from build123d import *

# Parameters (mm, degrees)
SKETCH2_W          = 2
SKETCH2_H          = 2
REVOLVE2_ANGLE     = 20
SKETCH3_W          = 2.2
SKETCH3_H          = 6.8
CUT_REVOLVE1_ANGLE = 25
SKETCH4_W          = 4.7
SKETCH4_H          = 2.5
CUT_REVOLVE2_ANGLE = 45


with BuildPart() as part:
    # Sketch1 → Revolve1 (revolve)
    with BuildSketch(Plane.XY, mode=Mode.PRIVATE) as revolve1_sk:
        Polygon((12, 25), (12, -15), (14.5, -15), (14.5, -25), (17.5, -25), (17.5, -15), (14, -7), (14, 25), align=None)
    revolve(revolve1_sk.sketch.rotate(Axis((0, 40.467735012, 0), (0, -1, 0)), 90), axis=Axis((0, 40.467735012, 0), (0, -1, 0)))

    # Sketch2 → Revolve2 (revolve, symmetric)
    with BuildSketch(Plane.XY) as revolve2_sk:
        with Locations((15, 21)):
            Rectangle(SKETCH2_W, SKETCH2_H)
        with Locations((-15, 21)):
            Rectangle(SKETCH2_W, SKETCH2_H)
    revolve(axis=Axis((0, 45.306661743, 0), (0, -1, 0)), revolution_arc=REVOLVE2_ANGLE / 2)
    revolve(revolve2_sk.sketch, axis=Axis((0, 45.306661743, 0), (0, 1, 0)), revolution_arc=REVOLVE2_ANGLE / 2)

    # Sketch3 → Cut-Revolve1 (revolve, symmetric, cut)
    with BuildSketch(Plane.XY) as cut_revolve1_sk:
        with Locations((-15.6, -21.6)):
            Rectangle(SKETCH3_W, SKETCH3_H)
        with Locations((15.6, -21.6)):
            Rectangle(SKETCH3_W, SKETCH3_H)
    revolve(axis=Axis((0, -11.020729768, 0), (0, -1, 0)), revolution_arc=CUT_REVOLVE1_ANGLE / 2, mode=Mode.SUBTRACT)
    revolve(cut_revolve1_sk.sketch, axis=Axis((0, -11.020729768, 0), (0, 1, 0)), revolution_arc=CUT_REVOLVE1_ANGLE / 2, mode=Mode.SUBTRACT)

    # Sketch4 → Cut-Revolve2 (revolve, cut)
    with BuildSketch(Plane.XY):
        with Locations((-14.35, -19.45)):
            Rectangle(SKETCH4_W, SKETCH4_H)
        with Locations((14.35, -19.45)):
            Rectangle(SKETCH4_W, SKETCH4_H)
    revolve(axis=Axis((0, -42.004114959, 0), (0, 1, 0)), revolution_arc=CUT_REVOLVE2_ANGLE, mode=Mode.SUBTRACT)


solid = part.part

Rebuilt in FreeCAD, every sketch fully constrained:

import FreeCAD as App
import Part
import Sketcher
from FreeCAD import Vector

doc = App.newDocument("Part")
body = doc.addObject("PartDesign::Body", "Body")

# Sketch on XY plane
sketch1 = doc.addObject("Sketcher::SketchObject", "Sketch")
body.addObject(sketch1)
sketch1.AttachmentSupport = (doc.XY_Plane, [""])
sketch1.MapMode = "FlatFace"
sketch1.addGeometry([
    Part.LineSegment(Vector(12, 25, 0), Vector(12, -15, 0)),  # 0
    Part.LineSegment(Vector(12, -15, 0), Vector(14.5, -15, 0)),  # 1
    Part.LineSegment(Vector(14.5, -15, 0), Vector(14.5, -25, 0)),  # 2
    Part.LineSegment(Vector(14.5, -25, 0), Vector(17.5, -25, 0)),  # 3
    Part.LineSegment(Vector(17.5, -25, 0), Vector(17.5, -15, 0)),  # 4
    Part.LineSegment(Vector(17.5, -15, 0), Vector(14, -7, 0)),  # 5
    Part.LineSegment(Vector(14, -7, 0), Vector(14, 25, 0)),  # 6
    Part.LineSegment(Vector(14, 25, 0), Vector(12, 25, 0)),  # 7
], False)
sketch1.addConstraint([
    Sketcher.Constraint("Coincident", 0, 2, 1, 1),
    Sketcher.Constraint("Coincident", 1, 2, 2, 1),
    Sketcher.Constraint("Coincident", 2, 2, 3, 1),
    Sketcher.Constraint("Coincident", 3, 2, 4, 1),
    Sketcher.Constraint("Coincident", 4, 2, 5, 1),
    Sketcher.Constraint("Coincident", 5, 2, 6, 1),
    Sketcher.Constraint("Coincident", 6, 2, 7, 1),
    Sketcher.Constraint("Coincident", 7, 2, 0, 1),
    Sketcher.Constraint("Vertical", 0),
    Sketcher.Constraint("Horizontal", 1),
    Sketcher.Constraint("Vertical", 2),
    Sketcher.Constraint("Horizontal", 3),
    Sketcher.Constraint("Vertical", 4),
    Sketcher.Constraint("Vertical", 6),
    Sketcher.Constraint("Horizontal", 7),
    Sketcher.Constraint("Horizontal", 1, 2, 4, 2),
    Sketcher.Constraint("DistanceX", 3, 1, 3, 2, 3.0),
    Sketcher.Constraint("DistanceX", 7, 2, 7, 1, 2.0),
    Sketcher.Constraint("DistanceY", 0, 2, 0, 1, 40.0),
    Sketcher.Constraint("DistanceY", 2, 2, 2, 1, 10.0),
    Sketcher.Constraint("DistanceY", 6, 1, 6, 2, 32.0),
    Sketcher.Constraint("DistanceX", 1, 1, 1, 2, 2.5),
    Sketcher.Constraint("DistanceX", -1, 1, 0, 2, 12.0),
    Sketcher.Constraint("DistanceY", 0, 2, -1, 1, 15.0),
])
revolution = doc.addObject("PartDesign::Revolution", "Revolution")
body.addObject(revolution)
revolution.Profile = sketch1
revolution.ReferenceAxis = (sketch1, ["V_Axis"])
revolution.Angle = 360

# Sketch on XY plane
sketch2 = doc.addObject("Sketcher::SketchObject", "Sketch001")
body.addObject(sketch2)
sketch2.AttachmentSupport = (doc.XY_Plane, [""])
sketch2.MapMode = "FlatFace"
sketch2.addGeometry([
    Part.LineSegment(Vector(14, 22, 0), Vector(14, 20, 0)),  # 0
    Part.LineSegment(Vector(14, 20, 0), Vector(16, 20, 0)),  # 1
    Part.LineSegment(Vector(16, 20, 0), Vector(16, 22, 0)),  # 2
    Part.LineSegment(Vector(16, 22, 0), Vector(14, 22, 0)),  # 3
    Part.LineSegment(Vector(-16, 22, 0), Vector(-16, 20, 0)),  # 4
    Part.LineSegment(Vector(-16, 20, 0), Vector(-14, 20, 0)),  # 5
    Part.LineSegment(Vector(-14, 20, 0), Vector(-14, 22, 0)),  # 6
    Part.LineSegment(Vector(-14, 22, 0), Vector(-16, 22, 0)),  # 7
], False)
sketch2.addConstraint([
    Sketcher.Constraint("Coincident", 0, 2, 1, 1),
    Sketcher.Constraint("Coincident", 1, 2, 2, 1),
    Sketcher.Constraint("Coincident", 2, 2, 3, 1),
    Sketcher.Constraint("Coincident", 3, 2, 0, 1),
    Sketcher.Constraint("Coincident", 4, 2, 5, 1),
    Sketcher.Constraint("Coincident", 5, 2, 6, 1),
    Sketcher.Constraint("Coincident", 6, 2, 7, 1),
    Sketcher.Constraint("Coincident", 7, 2, 4, 1),
    Sketcher.Constraint("Vertical", 0),
    Sketcher.Constraint("Horizontal", 1),
    Sketcher.Constraint("Vertical", 2),
    Sketcher.Constraint("Horizontal", 3),
    Sketcher.Constraint("Vertical", 4),
    Sketcher.Constraint("Horizontal", 5),
    Sketcher.Constraint("Vertical", 6),
    Sketcher.Constraint("Horizontal", 7),
    Sketcher.Constraint("Symmetric", 1, 2, 4, 2, -2),
    Sketcher.Constraint("Symmetric", 3, 2, 6, 2, -2),
    Sketcher.Constraint("Equal", 7, 0),
    Sketcher.Constraint("DistanceX", 1, 1, 1, 2, 2.0),
    Sketcher.Constraint("DistanceX", -1, 1, 0, 2, 14.0),
    Sketcher.Constraint("DistanceY", -1, 1, 0, 2, 20.0),
])
revolution2 = doc.addObject("PartDesign::Revolution", "Revolution001")
body.addObject(revolution2)
revolution2.Profile = sketch2
revolution2.ReferenceAxis = (sketch2, ["V_Axis"])
revolution2.Angle = 10
revolution2.Reversed = True

# Sketch on XY plane
sketch3 = doc.addObject("Sketcher::SketchObject", "Sketch002")
body.addObject(sketch3)
sketch3.AttachmentSupport = (doc.XY_Plane, [""])
sketch3.MapMode = "FlatFace"
sketch3.addGeometry([
    Part.LineSegment(Vector(14, 22, 0), Vector(14, 20, 0)),  # 0
    Part.LineSegment(Vector(14, 20, 0), Vector(16, 20, 0)),  # 1
    Part.LineSegment(Vector(16, 20, 0), Vector(16, 22, 0)),  # 2
    Part.LineSegment(Vector(16, 22, 0), Vector(14, 22, 0)),  # 3
    Part.LineSegment(Vector(-16, 22, 0), Vector(-16, 20, 0)),  # 4
    Part.LineSegment(Vector(-16, 20, 0), Vector(-14, 20, 0)),  # 5
    Part.LineSegment(Vector(-14, 20, 0), Vector(-14, 22, 0)),  # 6
    Part.LineSegment(Vector(-14, 22, 0), Vector(-16, 22, 0)),  # 7
], False)
sketch3.addConstraint([
    Sketcher.Constraint("Coincident", 0, 2, 1, 1),
    Sketcher.Constraint("Coincident", 1, 2, 2, 1),
    Sketcher.Constraint("Coincident", 2, 2, 3, 1),
    Sketcher.Constraint("Coincident", 3, 2, 0, 1),
    Sketcher.Constraint("Coincident", 4, 2, 5, 1),
    Sketcher.Constraint("Coincident", 5, 2, 6, 1),
    Sketcher.Constraint("Coincident", 6, 2, 7, 1),
    Sketcher.Constraint("Coincident", 7, 2, 4, 1),
    Sketcher.Constraint("Vertical", 0),
    Sketcher.Constraint("Horizontal", 1),
    Sketcher.Constraint("Vertical", 2),
    Sketcher.Constraint("Horizontal", 3),
    Sketcher.Constraint("Vertical", 4),
    Sketcher.Constraint("Horizontal", 5),
    Sketcher.Constraint("Vertical", 6),
    Sketcher.Constraint("Horizontal", 7),
    Sketcher.Constraint("Symmetric", 1, 2, 4, 2, -2),
    Sketcher.Constraint("Symmetric", 3, 2, 6, 2, -2),
    Sketcher.Constraint("Equal", 7, 0),
    Sketcher.Constraint("DistanceX", 1, 1, 1, 2, 2.0),
    Sketcher.Constraint("DistanceX", -1, 1, 0, 2, 14.0),
    Sketcher.Constraint("DistanceY", -1, 1, 0, 2, 20.0),
])
revolution3 = doc.addObject("PartDesign::Revolution", "Revolution002")
body.addObject(revolution3)
revolution3.Profile = sketch3
revolution3.ReferenceAxis = (sketch3, ["V_Axis"])
revolution3.Angle = 10

# Sketch on XY plane
sketch4 = doc.addObject("Sketcher::SketchObject", "Sketch003")
body.addObject(sketch4)
sketch4.AttachmentSupport = (doc.XY_Plane, [""])
sketch4.MapMode = "FlatFace"
sketch4.addGeometry([
    Part.LineSegment(Vector(-16.7, -18.2, 0), Vector(-16.7, -25, 0)),  # 0
    Part.LineSegment(Vector(-16.7, -25, 0), Vector(-14.5, -25, 0)),  # 1
    Part.LineSegment(Vector(-14.5, -25, 0), Vector(-14.5, -18.2, 0)),  # 2
    Part.LineSegment(Vector(-14.5, -18.2, 0), Vector(-16.7, -18.2, 0)),  # 3
    Part.LineSegment(Vector(14.5, -18.2, 0), Vector(14.5, -25, 0)),  # 4
    Part.LineSegment(Vector(14.5, -25, 0), Vector(16.7, -25, 0)),  # 5
    Part.LineSegment(Vector(16.7, -25, 0), Vector(16.7, -18.2, 0)),  # 6
    Part.LineSegment(Vector(16.7, -18.2, 0), Vector(14.5, -18.2, 0)),  # 7
], False)
sketch4.addConstraint([
    Sketcher.Constraint("Coincident", 0, 2, 1, 1),
    Sketcher.Constraint("Coincident", 1, 2, 2, 1),
    Sketcher.Constraint("Coincident", 2, 2, 3, 1),
    Sketcher.Constraint("Coincident", 3, 2, 0, 1),
    Sketcher.Constraint("Coincident", 4, 2, 5, 1),
    Sketcher.Constraint("Coincident", 5, 2, 6, 1),
    Sketcher.Constraint("Coincident", 6, 2, 7, 1),
    Sketcher.Constraint("Coincident", 7, 2, 4, 1),
    Sketcher.Constraint("Vertical", 0),
    Sketcher.Constraint("Horizontal", 1),
    Sketcher.Constraint("Vertical", 2),
    Sketcher.Constraint("Horizontal", 3),
    Sketcher.Constraint("Vertical", 4),
    Sketcher.Constraint("Horizontal", 5),
    Sketcher.Constraint("Vertical", 6),
    Sketcher.Constraint("Horizontal", 7),
    Sketcher.Constraint("Symmetric", 1, 2, 4, 2, -2),
    Sketcher.Constraint("Symmetric", 3, 2, 6, 2, -2),
    Sketcher.Constraint("DistanceX", 1, 1, 1, 2, 2.2),
    Sketcher.Constraint("DistanceY", 0, 2, 0, 1, 6.8),
    Sketcher.Constraint("DistanceY", 0, 2, -1, 1, 25.0),
    Sketcher.Constraint("DistanceX", 1, 2, 4, 2, 29.0),
])
groove = doc.addObject("PartDesign::Groove", "Groove")
body.addObject(groove)
groove.Profile = sketch4
groove.ReferenceAxis = (sketch4, ["V_Axis"])
groove.Angle = 12.5
groove.Reversed = True

# Sketch on XY plane
sketch5 = doc.addObject("Sketcher::SketchObject", "Sketch004")
body.addObject(sketch5)
sketch5.AttachmentSupport = (doc.XY_Plane, [""])
sketch5.MapMode = "FlatFace"
sketch5.addGeometry([
    Part.LineSegment(Vector(-16.7, -18.2, 0), Vector(-16.7, -25, 0)),  # 0
    Part.LineSegment(Vector(-16.7, -25, 0), Vector(-14.5, -25, 0)),  # 1
    Part.LineSegment(Vector(-14.5, -25, 0), Vector(-14.5, -18.2, 0)),  # 2
    Part.LineSegment(Vector(-14.5, -18.2, 0), Vector(-16.7, -18.2, 0)),  # 3
    Part.LineSegment(Vector(14.5, -18.2, 0), Vector(14.5, -25, 0)),  # 4
    Part.LineSegment(Vector(14.5, -25, 0), Vector(16.7, -25, 0)),  # 5
    Part.LineSegment(Vector(16.7, -25, 0), Vector(16.7, -18.2, 0)),  # 6
    Part.LineSegment(Vector(16.7, -18.2, 0), Vector(14.5, -18.2, 0)),  # 7
], False)
sketch5.addConstraint([
    Sketcher.Constraint("Coincident", 0, 2, 1, 1),
    Sketcher.Constraint("Coincident", 1, 2, 2, 1),
    Sketcher.Constraint("Coincident", 2, 2, 3, 1),
    Sketcher.Constraint("Coincident", 3, 2, 0, 1),
    Sketcher.Constraint("Coincident", 4, 2, 5, 1),
    Sketcher.Constraint("Coincident", 5, 2, 6, 1),
    Sketcher.Constraint("Coincident", 6, 2, 7, 1),
    Sketcher.Constraint("Coincident", 7, 2, 4, 1),
    Sketcher.Constraint("Vertical", 0),
    Sketcher.Constraint("Horizontal", 1),
    Sketcher.Constraint("Vertical", 2),
    Sketcher.Constraint("Horizontal", 3),
    Sketcher.Constraint("Vertical", 4),
    Sketcher.Constraint("Horizontal", 5),
    Sketcher.Constraint("Vertical", 6),
    Sketcher.Constraint("Horizontal", 7),
    Sketcher.Constraint("Symmetric", 1, 2, 4, 2, -2),
    Sketcher.Constraint("Symmetric", 3, 2, 6, 2, -2),
    Sketcher.Constraint("DistanceX", 1, 1, 1, 2, 2.2),
    Sketcher.Constraint("DistanceY", 0, 2, 0, 1, 6.8),
    Sketcher.Constraint("DistanceY", 0, 2, -1, 1, 25.0),
    Sketcher.Constraint("DistanceX", 1, 2, 4, 2, 29.0),
])
groove2 = doc.addObject("PartDesign::Groove", "Groove001")
body.addObject(groove2)
groove2.Profile = sketch5
groove2.ReferenceAxis = (sketch5, ["V_Axis"])
groove2.Angle = 12.5

# Sketch on XY plane
sketch6 = doc.addObject("Sketcher::SketchObject", "Sketch005")
body.addObject(sketch6)
sketch6.AttachmentSupport = (doc.XY_Plane, [""])
sketch6.MapMode = "FlatFace"
sketch6.addGeometry([
    Part.LineSegment(Vector(-16.7, -18.2, 0), Vector(-16.7, -20.7, 0)),  # 0
    Part.LineSegment(Vector(-16.7, -20.7, 0), Vector(-12, -20.7, 0)),  # 1
    Part.LineSegment(Vector(-12, -20.7, 0), Vector(-12, -18.2, 0)),  # 2
    Part.LineSegment(Vector(-12, -18.2, 0), Vector(-16.7, -18.2, 0)),  # 3
    Part.LineSegment(Vector(12, -18.2, 0), Vector(12, -20.7, 0)),  # 4
    Part.LineSegment(Vector(12, -20.7, 0), Vector(16.7, -20.7, 0)),  # 5
    Part.LineSegment(Vector(16.7, -20.7, 0), Vector(16.7, -18.2, 0)),  # 6
    Part.LineSegment(Vector(16.7, -18.2, 0), Vector(12, -18.2, 0)),  # 7
], False)
sketch6.addConstraint([
    Sketcher.Constraint("Coincident", 0, 2, 1, 1),
    Sketcher.Constraint("Coincident", 1, 2, 2, 1),
    Sketcher.Constraint("Coincident", 2, 2, 3, 1),
    Sketcher.Constraint("Coincident", 3, 2, 0, 1),
    Sketcher.Constraint("Coincident", 4, 2, 5, 1),
    Sketcher.Constraint("Coincident", 5, 2, 6, 1),
    Sketcher.Constraint("Coincident", 6, 2, 7, 1),
    Sketcher.Constraint("Coincident", 7, 2, 4, 1),
    Sketcher.Constraint("Vertical", 0),
    Sketcher.Constraint("Horizontal", 1),
    Sketcher.Constraint("Vertical", 2),
    Sketcher.Constraint("Horizontal", 3),
    Sketcher.Constraint("Vertical", 4),
    Sketcher.Constraint("Horizontal", 5),
    Sketcher.Constraint("Vertical", 6),
    Sketcher.Constraint("Horizontal", 7),
    Sketcher.Constraint("Symmetric", 1, 2, 4, 2, -2),
    Sketcher.Constraint("Symmetric", 3, 2, 6, 2, -2),
    Sketcher.Constraint("DistanceX", 1, 1, 1, 2, 4.7),
    Sketcher.Constraint("DistanceY", 0, 2, 0, 1, 2.5),
    Sketcher.Constraint("DistanceX", 1, 2, -1, 1, 12.0),
    Sketcher.Constraint("DistanceY", 0, 2, -1, 1, 20.7),
])
groove3 = doc.addObject("PartDesign::Groove", "Groove002")
body.addObject(groove3)
groove3.Profile = sketch6
groove3.ReferenceAxis = (sketch6, ["V_Axis"])
groove3.Angle = 45

doc.recompute()
